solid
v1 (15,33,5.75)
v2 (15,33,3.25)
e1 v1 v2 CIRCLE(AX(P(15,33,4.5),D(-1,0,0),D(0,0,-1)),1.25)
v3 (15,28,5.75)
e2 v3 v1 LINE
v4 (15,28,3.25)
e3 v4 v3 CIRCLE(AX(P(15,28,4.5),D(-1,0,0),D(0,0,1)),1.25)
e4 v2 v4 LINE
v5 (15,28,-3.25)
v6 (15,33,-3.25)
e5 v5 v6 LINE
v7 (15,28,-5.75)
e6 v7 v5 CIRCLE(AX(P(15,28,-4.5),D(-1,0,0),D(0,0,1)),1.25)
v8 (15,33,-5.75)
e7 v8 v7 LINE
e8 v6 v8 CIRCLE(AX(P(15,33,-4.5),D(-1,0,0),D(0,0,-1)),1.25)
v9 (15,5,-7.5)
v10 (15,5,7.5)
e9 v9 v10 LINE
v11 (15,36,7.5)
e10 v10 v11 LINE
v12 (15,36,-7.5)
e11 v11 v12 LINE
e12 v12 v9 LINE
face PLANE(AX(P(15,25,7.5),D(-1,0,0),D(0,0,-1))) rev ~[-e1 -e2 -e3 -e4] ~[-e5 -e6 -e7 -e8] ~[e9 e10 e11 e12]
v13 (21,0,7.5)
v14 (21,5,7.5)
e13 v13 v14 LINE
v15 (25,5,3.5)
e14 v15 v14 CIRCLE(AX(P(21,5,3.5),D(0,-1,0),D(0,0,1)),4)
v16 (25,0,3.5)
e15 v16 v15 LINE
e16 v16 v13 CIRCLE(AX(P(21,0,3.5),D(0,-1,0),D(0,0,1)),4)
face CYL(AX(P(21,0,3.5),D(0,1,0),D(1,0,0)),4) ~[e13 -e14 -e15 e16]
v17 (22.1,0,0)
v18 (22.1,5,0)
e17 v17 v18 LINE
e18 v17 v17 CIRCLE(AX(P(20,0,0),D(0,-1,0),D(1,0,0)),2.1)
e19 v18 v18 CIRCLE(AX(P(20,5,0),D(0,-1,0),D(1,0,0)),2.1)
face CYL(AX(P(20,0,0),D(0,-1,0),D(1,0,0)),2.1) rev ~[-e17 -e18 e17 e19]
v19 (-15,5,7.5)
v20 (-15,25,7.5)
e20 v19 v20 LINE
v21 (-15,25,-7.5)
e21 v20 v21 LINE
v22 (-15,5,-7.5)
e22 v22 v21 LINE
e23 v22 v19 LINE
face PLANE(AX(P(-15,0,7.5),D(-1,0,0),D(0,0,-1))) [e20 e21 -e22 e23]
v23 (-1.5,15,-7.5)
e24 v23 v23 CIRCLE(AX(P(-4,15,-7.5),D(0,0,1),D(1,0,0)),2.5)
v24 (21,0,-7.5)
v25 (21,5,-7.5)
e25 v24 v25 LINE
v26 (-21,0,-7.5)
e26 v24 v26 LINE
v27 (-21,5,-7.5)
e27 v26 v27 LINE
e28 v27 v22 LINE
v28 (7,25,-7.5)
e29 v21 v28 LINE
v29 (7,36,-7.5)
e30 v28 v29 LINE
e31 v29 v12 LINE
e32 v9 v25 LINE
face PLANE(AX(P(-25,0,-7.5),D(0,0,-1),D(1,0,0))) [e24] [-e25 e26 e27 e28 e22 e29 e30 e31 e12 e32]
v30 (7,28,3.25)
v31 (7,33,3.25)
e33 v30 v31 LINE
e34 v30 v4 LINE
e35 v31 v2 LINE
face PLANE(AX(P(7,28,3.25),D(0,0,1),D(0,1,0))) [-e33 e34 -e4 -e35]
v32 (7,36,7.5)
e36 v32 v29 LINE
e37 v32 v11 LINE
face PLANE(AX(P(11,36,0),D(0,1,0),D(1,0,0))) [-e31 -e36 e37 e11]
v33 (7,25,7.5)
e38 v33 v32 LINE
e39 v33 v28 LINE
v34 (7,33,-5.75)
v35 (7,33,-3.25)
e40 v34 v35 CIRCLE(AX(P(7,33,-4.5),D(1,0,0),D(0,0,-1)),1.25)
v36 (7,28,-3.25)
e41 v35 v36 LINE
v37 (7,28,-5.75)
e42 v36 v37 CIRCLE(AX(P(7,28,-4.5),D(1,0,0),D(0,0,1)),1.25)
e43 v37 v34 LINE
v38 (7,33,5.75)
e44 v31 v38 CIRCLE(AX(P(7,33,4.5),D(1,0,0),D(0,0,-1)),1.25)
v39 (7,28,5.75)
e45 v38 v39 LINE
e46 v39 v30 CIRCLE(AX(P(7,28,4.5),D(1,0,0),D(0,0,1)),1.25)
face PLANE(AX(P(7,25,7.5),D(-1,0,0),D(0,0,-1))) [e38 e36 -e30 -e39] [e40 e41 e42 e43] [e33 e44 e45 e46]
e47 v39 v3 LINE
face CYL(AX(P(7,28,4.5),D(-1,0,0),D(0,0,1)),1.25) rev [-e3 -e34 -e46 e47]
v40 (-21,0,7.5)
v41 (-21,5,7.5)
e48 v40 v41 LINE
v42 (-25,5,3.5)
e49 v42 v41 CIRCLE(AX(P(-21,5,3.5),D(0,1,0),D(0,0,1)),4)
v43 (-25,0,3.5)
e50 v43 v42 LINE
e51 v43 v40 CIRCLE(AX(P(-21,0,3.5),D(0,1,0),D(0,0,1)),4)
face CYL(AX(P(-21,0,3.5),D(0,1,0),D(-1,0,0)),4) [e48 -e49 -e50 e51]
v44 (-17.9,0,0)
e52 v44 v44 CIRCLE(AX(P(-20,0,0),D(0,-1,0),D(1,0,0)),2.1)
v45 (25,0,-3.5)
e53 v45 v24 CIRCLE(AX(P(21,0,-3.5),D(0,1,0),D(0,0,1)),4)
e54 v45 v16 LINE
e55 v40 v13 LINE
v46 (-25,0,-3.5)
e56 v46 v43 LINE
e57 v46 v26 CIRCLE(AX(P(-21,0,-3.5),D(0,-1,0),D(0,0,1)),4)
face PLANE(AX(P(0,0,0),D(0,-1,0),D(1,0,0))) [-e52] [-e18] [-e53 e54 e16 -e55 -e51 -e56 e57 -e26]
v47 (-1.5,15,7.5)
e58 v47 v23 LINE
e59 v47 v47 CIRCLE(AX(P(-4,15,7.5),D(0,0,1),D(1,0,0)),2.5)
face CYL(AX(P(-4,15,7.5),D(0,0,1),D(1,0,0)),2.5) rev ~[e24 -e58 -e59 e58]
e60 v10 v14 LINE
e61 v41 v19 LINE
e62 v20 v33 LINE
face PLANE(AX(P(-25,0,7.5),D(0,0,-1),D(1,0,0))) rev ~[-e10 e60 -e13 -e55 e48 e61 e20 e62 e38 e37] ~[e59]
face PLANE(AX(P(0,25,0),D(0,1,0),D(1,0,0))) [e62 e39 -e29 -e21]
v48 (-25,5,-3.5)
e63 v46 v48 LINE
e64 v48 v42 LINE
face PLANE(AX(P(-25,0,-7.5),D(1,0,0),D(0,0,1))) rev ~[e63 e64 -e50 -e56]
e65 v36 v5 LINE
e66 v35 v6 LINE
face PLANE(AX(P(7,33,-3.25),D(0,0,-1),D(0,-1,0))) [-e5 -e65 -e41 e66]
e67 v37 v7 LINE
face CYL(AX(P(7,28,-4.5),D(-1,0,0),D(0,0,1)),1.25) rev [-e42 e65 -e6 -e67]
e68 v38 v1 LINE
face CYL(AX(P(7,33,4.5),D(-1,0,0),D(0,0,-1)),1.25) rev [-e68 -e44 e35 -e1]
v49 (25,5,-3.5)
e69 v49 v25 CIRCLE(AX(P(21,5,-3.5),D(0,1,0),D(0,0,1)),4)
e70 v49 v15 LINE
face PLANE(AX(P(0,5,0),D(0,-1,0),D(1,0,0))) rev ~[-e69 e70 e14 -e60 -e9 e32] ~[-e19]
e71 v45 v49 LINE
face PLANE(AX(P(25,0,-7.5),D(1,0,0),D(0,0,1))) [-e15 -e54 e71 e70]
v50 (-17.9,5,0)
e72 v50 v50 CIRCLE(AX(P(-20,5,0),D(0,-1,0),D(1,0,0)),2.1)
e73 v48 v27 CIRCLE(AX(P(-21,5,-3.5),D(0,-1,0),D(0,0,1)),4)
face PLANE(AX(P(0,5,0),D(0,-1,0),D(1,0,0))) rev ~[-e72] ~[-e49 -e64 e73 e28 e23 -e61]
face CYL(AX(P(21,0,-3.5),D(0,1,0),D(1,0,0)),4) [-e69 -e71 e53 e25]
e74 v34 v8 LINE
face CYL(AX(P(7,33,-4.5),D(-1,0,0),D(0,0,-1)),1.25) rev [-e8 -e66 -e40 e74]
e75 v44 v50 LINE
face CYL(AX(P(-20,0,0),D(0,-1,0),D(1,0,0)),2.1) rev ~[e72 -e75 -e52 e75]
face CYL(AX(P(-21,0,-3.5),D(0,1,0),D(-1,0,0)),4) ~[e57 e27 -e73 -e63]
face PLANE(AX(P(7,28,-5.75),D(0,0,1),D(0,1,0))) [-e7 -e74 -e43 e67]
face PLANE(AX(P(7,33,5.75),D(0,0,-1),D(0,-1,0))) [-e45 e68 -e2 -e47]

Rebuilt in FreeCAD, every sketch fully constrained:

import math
import FreeCAD as App
import Part
import Sketcher
from FreeCAD import Vector
Q = App.Units.Quantity


def edges_at(feature, points):
    """Names of the edges that pass closest to the given points."""
    edges = feature.Shape.Edges
    near = lambda p: min(range(len(edges)), key=lambda i: edges[i].distToShape(Part.Vertex(*p))[0])
    return sorted({f"Edge{near(p) + 1}" for p in points})


def add_polygon(sketch, points):
    """Adds a closed chain of lines whose ends are joined by coincident constraints."""
    first, n = sketch.GeometryCount, len(points)
    for a, b in zip(points, points[1:] + points[:1]):
        sketch.addGeometry(Part.LineSegment(App.Vector(*a, 0), App.Vector(*b, 0)), False)
    for i in range(n):
        sketch.addConstraint(Sketcher.Constraint("Coincident", first + i, 2, first + (i + 1) % n, 1))

doc = App.newDocument("Part")
params = doc.addObject("Spreadsheet::Sheet", "Params")
for row, (alias, value) in enumerate([
    ("sketch1_width", "30 mm"),
    ("sketch1_height", "15 mm"),
    ("pad1_length", "25 mm"),
    ("sketch2_width", "8 mm"),
    ("sketch2_height", "15 mm"),
    ("pad2_length", "11 mm"),
    ("sketch3_diameter", "5 mm"),
    ("sketch4_width", "5 mm"),
    ("sketch4_radius", "1.25 mm"),
    ("sketch5_width", "5 mm"),
    ("sketch5_radius", "1.25 mm"),
    ("sketch6_diameter", "4.2 mm"),
    ("sketch6_width", "50 mm"),
    ("sketch6_height", "15 mm"),
    ("pad3_length", "5 mm"),
    ("fillet_radius", "4 mm"),
], start=1):
    params.set(f"A{row}", alias)
    params.set(f"B{row}", "=" + value)
    params.setAlias(f"B{row}", alias)

body = doc.addObject("PartDesign::Body", "Body")

# Sketch on XZ plane
sketch1 = body.newObject("Sketcher::SketchObject", "Sketch")
sketch1.AttachmentSupport = (doc.getObject("XZ_Plane"), [""])
sketch1.MapMode = "FlatFace"
add_polygon(sketch1, [(-15, -7.5), (-15, 7.5), (15, 7.5), (15, -7.5)])  # lines 0-3
sketch1.addConstraint([
    Sketcher.Constraint("Vertical", 0),
    Sketcher.Constraint("Horizontal", 1),
    Sketcher.Constraint("Vertical", 2),
    Sketcher.Constraint("Horizontal", 3),
    Sketcher.Constraint("Symmetric", 0, 2, 2, 2, -1, 1),
    Sketcher.Constraint("DistanceX", 1, 1, 1, 2, Q("30 mm")),
    Sketcher.Constraint("DistanceY", 0, 1, 0, 2, Q("15 mm")),
])
sketch1.setExpression("Constraints[9]", "Params.sketch1_width")
sketch1.setExpression("Constraints[10]", "Params.sketch1_height")
pad1 = body.newObject("PartDesign::Pad", "Pad")
pad1.Profile = sketch1
pad1.setExpression("Length", "Params.pad1_length")
pad1.Reversed = True

# Sketch on XZ plane
sketch2 = body.newObject("Sketcher::SketchObject", "Sketch001")
sketch2.AttachmentSupport = (doc.getObject("XZ_Plane"), [""])
sketch2.MapMode = "FlatFace"
sketch2.AttachmentOffset = App.Placement(Vector(0, 0, -25), App.Rotation())
add_polygon(sketch2, [(7, -7.5), (7, 7.5), (15, 7.5), (15, -7.5)])  # lines 0-3
sketch2.addConstraint([
    Sketcher.Constraint("Vertical", 0),
    Sketcher.Constraint("Horizontal", 1),
    Sketcher.Constraint("Vertical", 2),
    Sketcher.Constraint("Horizontal", 3),
    Sketcher.Constraint("DistanceX", 1, 1, 1, 2, Q("8 mm")),
    Sketcher.Constraint("DistanceY", 0, 1, 0, 2, Q("15 mm")),
    Sketcher.Constraint("DistanceX", -1, 1, 0, 2, Q("7 mm")),
    Sketcher.Constraint("DistanceY", -1, 1, 0, 2, Q("7.5 mm")),
])
sketch2.setExpression("Constraints[8]", "Params.sketch2_width")
sketch2.setExpression("Constraints[9]", "Params.sketch2_height")
pad2 = body.newObject("PartDesign::Pad", "Pad001")
pad2.Profile = sketch2
pad2.setExpression("Length", "Params.pad2_length")
pad2.Reversed = True

# Sketch on XY plane
sketch3 = body.newObject("Sketcher::SketchObject", "Sketch002")
sketch3.AttachmentSupport = (doc.getObject("XY_Plane"), [""])
sketch3.MapMode = "FlatFace"
sketch3.AttachmentOffset = App.Placement(Vector(0, 0, 7.5), App.Rotation())
sketch3.addGeometry(Part.Circle(Vector(-4, 15, 0), Vector(0, 0, 1), 2.5), False)
sketch3.addConstraint([
    Sketcher.Constraint("Diameter", 0, Q("5 mm")),
    Sketcher.Constraint("DistanceX", 0, 3, -1, 1, Q("4 mm")),
    Sketcher.Constraint("DistanceY", -1, 1, 0, 3, Q("15 mm")),
])
sketch3.setExpression("Constraints[0]", "Params.sketch3_diameter")
pocket1 = body.newObject("PartDesign::Pocket", "Pocket")
pocket1.Profile = sketch3
pocket1.Type = "UpToFirst"

# Sketch on YZ plane
sketch4 = body.newObject("Sketcher::SketchObject", "Sketch003")
sketch4.AttachmentSupport = (doc.getObject("YZ_Plane"), [""])
sketch4.MapMode = "FlatFace"
sketch4.AttachmentOffset = App.Placement(Vector(0, 0, 7), App.Rotation())
sketch4.addGeometry([
    Part.LineSegment(Vector(28, 5.75, 0), Vector(33, 5.75, 0)),
    Part.ArcOfCircle(Part.Circle(Vector(33, 4.5, 0), Vector(0, 0, 1), 1.25), math.radians(-90), math.radians(90)),
    Part.LineSegment(Vector(33, 3.25, 0), Vector(28, 3.25, 0)),
    Part.ArcOfCircle(Part.Circle(Vector(28, 4.5, 0), Vector(0, 0, 1), 1.25), math.radians(90), math.radians(270)),
], False)
sketch4.addConstraint([
    Sketcher.Constraint("Tangent", 0, 2, 1, 2),
    Sketcher.Constraint("Tangent", 1, 1, 2, 1),
    Sketcher.Constraint("Tangent", 2, 2, 3, 2),
    Sketcher.Constraint("Tangent", 3, 1, 0, 1),
    Sketcher.Constraint("Horizontal", 0),
    Sketcher.Constraint("Horizontal", 2),
    Sketcher.Constraint("DistanceX", 0, 1, 0, 2, Q("5 mm")),
    Sketcher.Constraint("Radius", 1, Q("1.25 mm")),
    Sketcher.Constraint("DistanceX", -1, 1, 1, 3, Q("33 mm")),
    Sketcher.Constraint("DistanceY", -1, 1, 1, 3, Q("4.5 mm")),
])
sketch4.setExpression("Constraints[6]", "Params.sketch4_width")
sketch4.setExpression("Constraints[7]", "Params.sketch4_radius")
pocket2 = body.newObject("PartDesign::Pocket", "Pocket001")
pocket2.Profile = sketch4
pocket2.Type = "UpToFirst"
pocket2.Reversed = True

# Sketch on YZ plane
sketch5 = body.newObject("Sketcher::SketchObject", "Sketch004")
sketch5.AttachmentSupport = (doc.getObject("YZ_Plane"), [""])
sketch5.MapMode = "FlatFace"
sketch5.AttachmentOffset = App.Placement(Vector(0, 0, 7), App.Rotation())
sketch5.addGeometry([
    Part.LineSegment(Vector(28, -3.25, 0), Vector(33, -3.25, 0)),
    Part.ArcOfCircle(Part.Circle(Vector(33, -4.5, 0), Vector(0, 0, 1), 1.25), math.radians(-90), math.radians(90)),
    Part.LineSegment(Vector(33, -5.75, 0), Vector(28, -5.75, 0)),
    Part.ArcOfCircle(Part.Circle(Vector(28, -4.5, 0), Vector(0, 0, 1), 1.25), math.radians(90), math.radians(270)),
], False)
sketch5.addConstraint([
    Sketcher.Constraint("Tangent", 0, 2, 1, 2),
    Sketcher.Constraint("Tangent", 1, 1, 2, 1),
    Sketcher.Constraint("Tangent", 2, 2, 3, 2),
    Sketcher.Constraint("Tangent", 3, 1, 0, 1),
    Sketcher.Constraint("Horizontal", 0),
    Sketcher.Constraint("Horizontal", 2),
    Sketcher.Constraint("DistanceX", 0, 1, 0, 2, Q("5 mm")),
    Sketcher.Constraint("Radius", 1, Q("1.25 mm")),
    Sketcher.Constraint("DistanceX", -1, 1, 1, 3, Q("33 mm")),
    Sketcher.Constraint("DistanceY", 1, 3, -1, 1, Q("4.5 mm")),
])
sketch5.setExpression("Constraints[6]", "Params.sketch5_width")
sketch5.setExpression("Constraints[7]", "Params.sketch5_radius")
pocket3 = body.newObject("PartDesign::Pocket", "Pocket002")
pocket3.Profile = sketch5
pocket3.Type = "UpToFirst"
pocket3.Reversed = True

# Sketch on XZ plane
sketch6 = body.newObject("Sketcher::SketchObject", "Sketch005")
sketch6.AttachmentSupport = (doc.getObject("XZ_Plane"), [""])
sketch6.MapMode = "FlatFace"
add_polygon(sketch6, [(-25, 7.5), (-25, -7.5), (25, -7.5), (25, 7.5)])  # lines 0-3
sketch6.addGeometry(Part.Circle(Vector(-20, 0, 0), Vector(0, 0, 1), 2.1), False)  # 4
sketch6.addGeometry(Part.Circle(Vector(20, 0, 0), Vector(0, 0, 1), 2.1), False)  # 5
sketch6.addConstraint([
    Sketcher.Constraint("Vertical", 0),
    Sketcher.Constraint("Horizontal", 1),
    Sketcher.Constraint("Vertical", 2),
    Sketcher.Constraint("Horizontal", 3),
    Sketcher.Constraint("Equal", 4, 5),
    Sketcher.Constraint("Symmetric", 4, 3, 5, 3, -1, 1),
    Sketcher.Constraint("Symmetric", 0, 2, 2, 2, -1, 1),
    Sketcher.Constraint("PointOnObject", 4, 3, -1),
    Sketcher.Constraint("Diameter", 4, Q("4.2 mm")),
    Sketcher.Constraint("DistanceX", 1, 1, 1, 2, Q("50 mm")),
    Sketcher.Constraint("DistanceY", 0, 2, 0, 1, Q("15 mm")),
    Sketcher.Constraint("DistanceX", 4, 3, -1, 1, Q("20 mm")),
])
sketch6.setExpression("Constraints[12]", "Params.sketch6_diameter")
sketch6.setExpression("Constraints[13]", "Params.sketch6_width")
sketch6.setExpression("Constraints[14]", "Params.sketch6_height")
pad3 = body.newObject("PartDesign::Pad", "Pad002")
pad3.Profile = sketch6
pad3.setExpression("Length", "Params.pad3_length")
pad3.Reversed = True
doc.recompute()

fillet = body.newObject("PartDesign::Fillet", "Fillet")
fillet.Base = (pad3, edges_at(pad3, [
    (25, 2.5, -7.5),
    (-25, 2.5, 7.5),
    (25, 2.5, 7.5),
    (-25, 2.5, -7.5),
]))
fillet.setExpression("Radius", "Params.fillet_radius")

doc.recompute()
